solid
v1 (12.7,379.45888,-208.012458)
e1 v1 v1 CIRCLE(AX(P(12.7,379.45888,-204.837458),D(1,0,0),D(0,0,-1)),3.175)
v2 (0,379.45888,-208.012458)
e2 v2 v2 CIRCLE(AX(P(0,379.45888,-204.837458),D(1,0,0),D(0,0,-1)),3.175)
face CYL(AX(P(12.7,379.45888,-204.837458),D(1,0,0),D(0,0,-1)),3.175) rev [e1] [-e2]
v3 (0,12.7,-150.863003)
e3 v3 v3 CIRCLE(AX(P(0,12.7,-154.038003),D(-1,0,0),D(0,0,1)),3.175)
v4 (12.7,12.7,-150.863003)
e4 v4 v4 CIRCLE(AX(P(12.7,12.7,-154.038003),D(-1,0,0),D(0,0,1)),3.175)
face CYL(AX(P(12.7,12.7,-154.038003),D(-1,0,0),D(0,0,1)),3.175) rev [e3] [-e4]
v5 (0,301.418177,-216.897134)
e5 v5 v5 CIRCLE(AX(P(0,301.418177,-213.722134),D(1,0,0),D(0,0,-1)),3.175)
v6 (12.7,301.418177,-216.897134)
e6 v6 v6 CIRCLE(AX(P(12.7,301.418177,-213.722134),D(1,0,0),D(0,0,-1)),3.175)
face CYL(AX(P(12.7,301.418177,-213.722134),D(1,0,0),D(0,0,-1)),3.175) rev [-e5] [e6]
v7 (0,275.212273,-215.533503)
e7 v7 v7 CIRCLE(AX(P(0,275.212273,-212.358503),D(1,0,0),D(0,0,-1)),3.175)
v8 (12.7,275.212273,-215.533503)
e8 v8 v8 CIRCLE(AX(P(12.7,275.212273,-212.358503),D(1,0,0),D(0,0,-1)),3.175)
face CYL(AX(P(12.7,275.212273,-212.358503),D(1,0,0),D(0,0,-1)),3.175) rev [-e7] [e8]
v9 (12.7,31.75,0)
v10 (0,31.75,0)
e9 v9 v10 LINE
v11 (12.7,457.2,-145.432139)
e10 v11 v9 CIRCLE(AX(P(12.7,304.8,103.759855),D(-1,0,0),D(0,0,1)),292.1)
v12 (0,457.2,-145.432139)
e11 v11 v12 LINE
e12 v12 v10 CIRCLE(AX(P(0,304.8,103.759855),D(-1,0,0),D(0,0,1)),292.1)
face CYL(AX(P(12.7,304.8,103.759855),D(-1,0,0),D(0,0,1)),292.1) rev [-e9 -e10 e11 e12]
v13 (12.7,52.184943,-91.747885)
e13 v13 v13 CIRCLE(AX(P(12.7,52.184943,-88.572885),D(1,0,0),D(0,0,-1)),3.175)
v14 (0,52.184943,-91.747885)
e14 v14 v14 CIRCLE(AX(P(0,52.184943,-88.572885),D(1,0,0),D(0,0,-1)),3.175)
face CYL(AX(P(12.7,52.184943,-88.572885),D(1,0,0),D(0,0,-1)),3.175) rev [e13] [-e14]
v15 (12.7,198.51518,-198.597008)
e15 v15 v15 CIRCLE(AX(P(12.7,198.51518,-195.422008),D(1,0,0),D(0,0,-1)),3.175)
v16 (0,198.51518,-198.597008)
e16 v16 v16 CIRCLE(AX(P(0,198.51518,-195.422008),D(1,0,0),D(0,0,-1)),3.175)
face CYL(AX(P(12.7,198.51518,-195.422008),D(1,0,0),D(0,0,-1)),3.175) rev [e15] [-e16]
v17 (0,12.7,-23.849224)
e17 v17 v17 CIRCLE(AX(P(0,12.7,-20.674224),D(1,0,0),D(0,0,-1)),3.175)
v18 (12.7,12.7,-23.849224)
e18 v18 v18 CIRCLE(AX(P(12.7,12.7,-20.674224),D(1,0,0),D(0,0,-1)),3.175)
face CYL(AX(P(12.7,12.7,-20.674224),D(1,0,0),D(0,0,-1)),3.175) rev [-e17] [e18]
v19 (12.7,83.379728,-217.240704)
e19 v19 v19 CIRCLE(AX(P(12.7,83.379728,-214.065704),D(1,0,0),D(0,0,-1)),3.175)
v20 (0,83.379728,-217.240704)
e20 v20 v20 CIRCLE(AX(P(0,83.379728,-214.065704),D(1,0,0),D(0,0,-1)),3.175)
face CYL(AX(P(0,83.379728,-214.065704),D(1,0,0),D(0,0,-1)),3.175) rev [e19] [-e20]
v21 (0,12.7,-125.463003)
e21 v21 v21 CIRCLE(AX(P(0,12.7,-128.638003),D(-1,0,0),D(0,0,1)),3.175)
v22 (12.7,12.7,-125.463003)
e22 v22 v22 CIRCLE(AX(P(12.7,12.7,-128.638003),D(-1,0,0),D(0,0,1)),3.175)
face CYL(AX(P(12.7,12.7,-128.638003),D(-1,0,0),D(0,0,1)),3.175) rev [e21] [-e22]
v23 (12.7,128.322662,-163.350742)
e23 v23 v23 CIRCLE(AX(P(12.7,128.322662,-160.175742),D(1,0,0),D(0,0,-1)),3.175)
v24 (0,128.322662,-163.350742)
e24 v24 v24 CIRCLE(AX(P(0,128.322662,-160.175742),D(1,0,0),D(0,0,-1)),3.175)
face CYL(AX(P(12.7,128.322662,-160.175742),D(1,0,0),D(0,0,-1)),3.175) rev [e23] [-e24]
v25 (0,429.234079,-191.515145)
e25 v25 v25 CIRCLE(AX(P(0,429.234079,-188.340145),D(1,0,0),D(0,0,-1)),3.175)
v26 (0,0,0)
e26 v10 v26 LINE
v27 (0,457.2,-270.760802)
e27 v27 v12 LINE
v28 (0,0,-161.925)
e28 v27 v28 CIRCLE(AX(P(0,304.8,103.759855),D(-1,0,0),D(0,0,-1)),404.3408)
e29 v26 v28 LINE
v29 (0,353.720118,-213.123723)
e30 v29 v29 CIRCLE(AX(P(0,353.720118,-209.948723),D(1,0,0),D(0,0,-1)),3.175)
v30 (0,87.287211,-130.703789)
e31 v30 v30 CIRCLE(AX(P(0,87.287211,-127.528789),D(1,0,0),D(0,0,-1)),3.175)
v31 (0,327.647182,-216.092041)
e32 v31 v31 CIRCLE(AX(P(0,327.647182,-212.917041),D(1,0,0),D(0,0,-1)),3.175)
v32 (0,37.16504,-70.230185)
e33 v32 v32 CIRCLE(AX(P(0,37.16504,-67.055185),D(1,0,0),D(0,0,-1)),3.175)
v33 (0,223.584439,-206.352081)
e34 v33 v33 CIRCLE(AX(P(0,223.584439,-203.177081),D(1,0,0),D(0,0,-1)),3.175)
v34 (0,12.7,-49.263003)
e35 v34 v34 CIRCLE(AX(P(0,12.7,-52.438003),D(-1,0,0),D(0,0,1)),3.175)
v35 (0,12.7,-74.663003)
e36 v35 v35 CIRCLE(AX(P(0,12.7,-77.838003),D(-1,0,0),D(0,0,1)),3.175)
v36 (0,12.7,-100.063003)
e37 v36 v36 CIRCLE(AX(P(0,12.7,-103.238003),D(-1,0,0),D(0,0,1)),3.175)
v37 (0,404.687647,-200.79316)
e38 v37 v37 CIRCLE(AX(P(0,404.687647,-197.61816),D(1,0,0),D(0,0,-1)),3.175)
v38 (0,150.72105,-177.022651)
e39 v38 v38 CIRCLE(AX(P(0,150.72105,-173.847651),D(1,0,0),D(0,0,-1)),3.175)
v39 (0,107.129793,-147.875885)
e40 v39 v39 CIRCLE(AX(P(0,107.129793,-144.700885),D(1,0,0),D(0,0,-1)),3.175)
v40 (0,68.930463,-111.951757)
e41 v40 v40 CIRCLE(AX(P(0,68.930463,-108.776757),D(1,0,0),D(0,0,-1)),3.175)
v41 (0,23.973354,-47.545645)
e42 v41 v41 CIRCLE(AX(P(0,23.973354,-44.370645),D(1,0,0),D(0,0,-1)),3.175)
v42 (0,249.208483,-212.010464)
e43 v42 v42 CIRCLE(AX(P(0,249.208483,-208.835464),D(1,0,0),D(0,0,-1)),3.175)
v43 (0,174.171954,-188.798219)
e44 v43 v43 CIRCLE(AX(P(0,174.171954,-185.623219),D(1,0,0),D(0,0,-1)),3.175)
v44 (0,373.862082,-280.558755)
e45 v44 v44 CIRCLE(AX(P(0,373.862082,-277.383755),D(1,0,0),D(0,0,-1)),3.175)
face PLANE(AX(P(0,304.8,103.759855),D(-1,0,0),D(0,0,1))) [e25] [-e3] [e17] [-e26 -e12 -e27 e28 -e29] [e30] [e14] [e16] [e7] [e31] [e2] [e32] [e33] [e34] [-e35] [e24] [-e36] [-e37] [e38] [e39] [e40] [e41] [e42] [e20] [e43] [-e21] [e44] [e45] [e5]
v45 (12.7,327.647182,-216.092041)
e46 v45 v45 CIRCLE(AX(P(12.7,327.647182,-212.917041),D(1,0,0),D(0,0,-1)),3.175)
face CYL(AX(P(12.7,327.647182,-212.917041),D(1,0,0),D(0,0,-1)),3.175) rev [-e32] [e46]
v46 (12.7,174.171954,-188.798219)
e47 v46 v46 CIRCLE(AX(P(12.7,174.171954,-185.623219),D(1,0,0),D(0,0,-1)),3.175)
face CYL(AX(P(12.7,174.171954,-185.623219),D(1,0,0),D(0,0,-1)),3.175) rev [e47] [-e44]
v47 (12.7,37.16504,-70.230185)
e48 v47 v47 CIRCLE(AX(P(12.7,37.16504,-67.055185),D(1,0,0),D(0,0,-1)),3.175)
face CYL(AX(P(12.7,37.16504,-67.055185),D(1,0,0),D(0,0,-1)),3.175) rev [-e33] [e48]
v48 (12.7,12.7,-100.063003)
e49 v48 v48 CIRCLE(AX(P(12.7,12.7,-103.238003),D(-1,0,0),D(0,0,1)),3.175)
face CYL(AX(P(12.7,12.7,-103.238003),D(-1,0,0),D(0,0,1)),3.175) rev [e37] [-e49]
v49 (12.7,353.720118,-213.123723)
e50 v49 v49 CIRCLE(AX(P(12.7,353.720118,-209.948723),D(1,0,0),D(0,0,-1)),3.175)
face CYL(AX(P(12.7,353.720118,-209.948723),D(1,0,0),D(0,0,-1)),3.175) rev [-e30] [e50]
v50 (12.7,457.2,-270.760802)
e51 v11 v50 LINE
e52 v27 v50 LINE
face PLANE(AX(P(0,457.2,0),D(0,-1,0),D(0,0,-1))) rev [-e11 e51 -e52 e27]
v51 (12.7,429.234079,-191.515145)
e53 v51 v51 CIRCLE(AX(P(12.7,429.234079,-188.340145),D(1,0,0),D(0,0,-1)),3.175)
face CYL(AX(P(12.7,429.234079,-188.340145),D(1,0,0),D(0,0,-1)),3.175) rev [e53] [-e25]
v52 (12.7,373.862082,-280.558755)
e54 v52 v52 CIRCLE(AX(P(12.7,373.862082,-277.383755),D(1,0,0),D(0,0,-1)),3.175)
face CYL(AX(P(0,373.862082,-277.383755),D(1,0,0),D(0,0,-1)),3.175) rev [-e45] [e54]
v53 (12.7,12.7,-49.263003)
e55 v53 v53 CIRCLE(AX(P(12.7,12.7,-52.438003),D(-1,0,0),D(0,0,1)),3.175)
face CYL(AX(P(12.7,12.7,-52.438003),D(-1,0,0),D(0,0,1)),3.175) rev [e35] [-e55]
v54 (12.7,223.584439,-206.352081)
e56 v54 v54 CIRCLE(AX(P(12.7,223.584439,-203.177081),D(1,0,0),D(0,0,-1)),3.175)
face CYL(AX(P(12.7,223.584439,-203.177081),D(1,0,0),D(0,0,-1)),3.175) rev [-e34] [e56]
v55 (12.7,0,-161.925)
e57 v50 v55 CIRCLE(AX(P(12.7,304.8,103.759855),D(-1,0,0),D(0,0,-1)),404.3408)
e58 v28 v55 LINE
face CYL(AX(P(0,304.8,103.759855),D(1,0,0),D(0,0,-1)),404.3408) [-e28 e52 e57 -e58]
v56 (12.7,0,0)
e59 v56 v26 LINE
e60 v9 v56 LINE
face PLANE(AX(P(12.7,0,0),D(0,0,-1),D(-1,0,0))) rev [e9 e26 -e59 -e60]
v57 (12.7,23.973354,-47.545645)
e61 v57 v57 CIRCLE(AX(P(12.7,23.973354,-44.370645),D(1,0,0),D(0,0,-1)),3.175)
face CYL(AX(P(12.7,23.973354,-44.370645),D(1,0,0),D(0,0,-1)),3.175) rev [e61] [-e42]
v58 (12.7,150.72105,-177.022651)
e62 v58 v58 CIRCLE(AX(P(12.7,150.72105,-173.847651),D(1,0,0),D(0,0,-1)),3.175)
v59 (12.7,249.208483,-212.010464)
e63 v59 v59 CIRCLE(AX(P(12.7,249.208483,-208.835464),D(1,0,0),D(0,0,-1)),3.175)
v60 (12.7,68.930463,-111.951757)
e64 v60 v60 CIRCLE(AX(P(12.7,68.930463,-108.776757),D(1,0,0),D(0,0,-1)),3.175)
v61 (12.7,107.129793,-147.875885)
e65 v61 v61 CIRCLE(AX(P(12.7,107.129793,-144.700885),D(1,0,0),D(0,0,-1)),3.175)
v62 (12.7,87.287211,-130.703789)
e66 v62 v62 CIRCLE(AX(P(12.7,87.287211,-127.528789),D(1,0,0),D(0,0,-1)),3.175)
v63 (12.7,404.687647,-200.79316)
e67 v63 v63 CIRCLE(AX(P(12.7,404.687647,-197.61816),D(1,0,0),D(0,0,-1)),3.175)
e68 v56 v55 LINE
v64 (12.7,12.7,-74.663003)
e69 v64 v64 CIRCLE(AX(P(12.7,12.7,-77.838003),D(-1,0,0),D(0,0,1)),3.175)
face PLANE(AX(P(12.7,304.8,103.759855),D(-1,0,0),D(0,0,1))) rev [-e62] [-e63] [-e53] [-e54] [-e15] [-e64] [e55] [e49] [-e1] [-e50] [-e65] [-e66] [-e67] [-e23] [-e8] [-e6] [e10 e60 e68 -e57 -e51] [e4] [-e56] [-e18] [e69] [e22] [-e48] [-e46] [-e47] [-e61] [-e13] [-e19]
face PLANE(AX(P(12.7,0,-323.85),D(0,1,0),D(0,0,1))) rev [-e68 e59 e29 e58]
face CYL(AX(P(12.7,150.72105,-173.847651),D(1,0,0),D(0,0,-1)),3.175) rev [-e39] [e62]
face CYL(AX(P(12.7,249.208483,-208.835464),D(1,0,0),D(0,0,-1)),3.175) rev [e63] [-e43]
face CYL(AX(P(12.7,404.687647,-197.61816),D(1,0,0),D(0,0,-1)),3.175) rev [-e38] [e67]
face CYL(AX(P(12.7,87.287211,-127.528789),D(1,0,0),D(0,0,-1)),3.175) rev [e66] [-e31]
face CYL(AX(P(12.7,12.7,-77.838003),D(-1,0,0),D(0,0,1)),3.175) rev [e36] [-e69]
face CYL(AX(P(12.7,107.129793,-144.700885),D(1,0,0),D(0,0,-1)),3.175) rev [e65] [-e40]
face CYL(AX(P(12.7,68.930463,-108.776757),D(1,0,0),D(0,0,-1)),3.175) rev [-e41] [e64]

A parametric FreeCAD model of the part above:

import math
import FreeCAD as App
import Part
import Sketcher
from FreeCAD import Vector
Q = App.Units.Quantity

doc = App.newDocument("Part")
params = doc.addObject("Spreadsheet::Sheet", "Params")
for row, (alias, value) in enumerate([
    ("sketch1_radius", "11.5 in"),
    ("sketch1_width", "24 in"),
    ("sketch1_width2", "1.25 in"),
    ("sketch1_height", "12.75 in"),
    ("pad1_length", "0.5 in"),
    ("sketch2_width", "6 in"),
    ("sketch2_height", "12.75 in"),
    ("pocket1_length", "0.5 in"),
    ("sketch3_diameter", "0.25 in"),
    ("hole_diameter", "0.25 in"),
    ("sketch4_width", "18 in"),
    ("sketch4_height", "6.375 in"),
    ("sketch5_diameter", "0.25 in"),
    ("sketch6_diameter", "0.25 in"),
    ("linearpattern_pitch", "1 in"),
], start=1):
    params.set(f"A{row}", alias)
    params.set(f"B{row}", "=" + value)
    params.setAlias(f"B{row}", alias)

body = doc.addObject("PartDesign::Body", "Body")

sketch1 = body.newObject("Sketcher::SketchObject", "Sketch")
sketch1.AttachmentSupport = (doc.getObject("YZ_Plane"), [""])
sketch1.MapMode = "FlatFace"
sketch1.addGeometry([
    Part.LineSegment(Vector(610, -324, 0), Vector(610, 0, 0)),
    Part.LineSegment(Vector(610, 0, 0), Vector(578, 0, 0)),
    Part.ArcOfCircle(Part.Circle(Vector(305, 104, 0), Vector(0, 0, 1), 292), math.radians(-159), math.radians(-21)),
    Part.LineSegment(Vector(32, 0, 0), Vector(0, 0, 0)),
    Part.LineSegment(Vector(0, 0, 0), Vector(0, -324, 0)),
    Part.LineSegment(Vector(0, -324, 0), Vector(610, -324, 0)),
], False)
sketch1.addConstraint([
    Sketcher.Constraint("Coincident", 0, 2, 1, 1),
    Sketcher.Constraint("Coincident", 1, 2, 2, 2),
    Sketcher.Constraint("Coincident", 2, 1, 3, 1),
    Sketcher.Constraint("Coincident", 3, 2, 4, 1),
    Sketcher.Constraint("Coincident", 4, 2, 5, 1),
    Sketcher.Constraint("Coincident", 5, 2, 0, 1),
    Sketcher.Constraint("Vertical", 0),
    Sketcher.Constraint("Horizontal", 1),
    Sketcher.Constraint("Horizontal", 3),
    Sketcher.Constraint("Vertical", 4),
    Sketcher.Constraint("Horizontal", 5),
    Sketcher.Constraint("Coincident", 3, 2, -1, 1),
    Sketcher.Constraint("PointOnObject", 0, 2, -1),
    Sketcher.Constraint("Equal", 1, 3),
    Sketcher.Constraint("Radius", 2, Q("11.5 in")),
    Sketcher.Constraint("DistanceX", 5, 1, 5, 2, Q("24 in")),
    Sketcher.Constraint("DistanceX", 1, 2, 1, 1, Q("1.25 in")),
    Sketcher.Constraint("DistanceY", 0, 1, 0, 2, Q("12.75 in")),
])
sketch1.setExpression("Constraints[14]", "Params.sketch1_radius")
sketch1.setExpression("Constraints[15]", "Params.sketch1_width")
sketch1.setExpression("Constraints[16]", "Params.sketch1_width2")
sketch1.setExpression("Constraints[17]", "Params.sketch1_height")
pad1 = body.newObject("PartDesign::Pad", "Pad")
pad1.Profile = sketch1
pad1.setExpression("Length", "Params.pad1_length")

sketch2 = body.newObject("Sketcher::SketchObject", "Sketch001")
sketch2.AttachmentSupport = (doc.getObject("YZ_Plane"), [""])
sketch2.MapMode = "FlatFace"
sketch2.AttachmentOffset = App.Placement(Vector(0, 0, 0.5 * 25.4), App.Rotation())
sketch2.addGeometry([
    Part.LineSegment(Vector(610, 0, 0), Vector(457, 0, 0)),
    Part.LineSegment(Vector(457, 0, 0), Vector(457, -324, 0)),
    Part.LineSegment(Vector(457, -324, 0), Vector(610, -324, 0)),
    Part.LineSegment(Vector(610, -324, 0), Vector(610, 0, 0)),
], False)
sketch2.addConstraint([
    Sketcher.Constraint("Coincident", 0, 2, 1, 1),
    Sketcher.Constraint("Coincident", 1, 2, 2, 1),
    Sketcher.Constraint("Coincident", 2, 2, 3, 1),
    Sketcher.Constraint("Coincident", 3, 2, 0, 1),
    Sketcher.Constraint("Horizontal", 0),
    Sketcher.Constraint("Vertical", 1),
    Sketcher.Constraint("Horizontal", 2),
    Sketcher.Constraint("Vertical", 3),
    Sketcher.Constraint("PointOnObject", 0, 2, -1),
    Sketcher.Constraint("DistanceX", 0, 2, 0, 1, Q("6 in")),
    Sketcher.Constraint("DistanceX", -1, 1, 0, 2, Q("18 in")),
    Sketcher.Constraint("DistanceY", 1, 2, 1, 1, Q("12.75 in")),
])
sketch2.setExpression("Constraints[9]", "Params.sketch2_width")
sketch2.setExpression("Constraints[11]", "Params.sketch2_height")
pocket1 = body.newObject("PartDesign::Pocket", "Pocket")
pocket1.Profile = sketch2
pocket1.setExpression("Length", "Params.pocket1_length")

sketch3 = body.newObject("Sketcher::SketchObject", "Sketch002")
sketch3.AttachmentSupport = (doc.getObject("YZ_Plane"), [""])
sketch3.MapMode = "FlatFace"
sketch3.AttachmentOffset = App.Placement(Vector(0, 0, 0.5 * 25.4), App.Rotation())
sketch3.addGeometry([
    Part.Circle(Vector(12.7, -20.7, 0), Vector(0, 0, 1), 3.2),
    Part.Circle(Vector(24, -44.4, 0), Vector(0, 0, 1), 3.2),
    Part.Circle(Vector(37.2, -67.1, 0), Vector(0, 0, 1), 3.2),
    Part.Circle(Vector(52.2, -88.6, 0), Vector(0, 0, 1), 3.2),
    Part.Circle(Vector(68.9, -108.8, 0), Vector(0, 0, 1), 3.2),
    Part.Circle(Vector(87.3, -127.5, 0), Vector(0, 0, 1), 3.2),
    Part.Circle(Vector(107.1, -144.7, 0), Vector(0, 0, 1), 3.2),
    Part.Circle(Vector(128.3, -160.2, 0), Vector(0, 0, 1), 3.2),
    Part.Circle(Vector(150.7, -173.8, 0), Vector(0, 0, 1), 3.2),
    Part.Circle(Vector(174.2, -185.6, 0), Vector(0, 0, 1), 3.2),
    Part.Circle(Vector(198.5, -195.4, 0), Vector(0, 0, 1), 3.2),
    Part.Circle(Vector(223.6, -203.2, 0), Vector(0, 0, 1), 3.2),
    Part.Circle(Vector(249.2, -208.8, 0), Vector(0, 0, 1), 3.2),
    Part.Circle(Vector(275.2, -212.4, 0), Vector(0, 0, 1), 3.2),
    Part.Circle(Vector(301.4, -213.7, 0), Vector(0, 0, 1), 3.2),
    Part.Circle(Vector(327.6, -212.9, 0), Vector(0, 0, 1), 3.2),
    Part.Circle(Vector(353.7, -209.9, 0), Vector(0, 0, 1), 3.2),
    Part.Circle(Vector(379.5, -204.8, 0), Vector(0, 0, 1), 3.2),
    Part.Circle(Vector(404.7, -197.6, 0), Vector(0, 0, 1), 3.2),
    Part.Circle(Vector(429.2, -188.3, 0), Vector(0, 0, 1), 3.2),
], False)
sketch3.addConstraint([
    Sketcher.Constraint("Equal", 0, 1),
    Sketcher.Constraint("Equal", 1, 2),
    Sketcher.Constraint("Equal", 2, 3),
    Sketcher.Constraint("Equal", 3, 4),
    Sketcher.Constraint("Equal", 4, 5),
    Sketcher.Constraint("Equal", 5, 6),
    Sketcher.Constraint("Equal", 6, 7),
    Sketcher.Constraint("Equal", 7, 8),
    Sketcher.Constraint("Equal", 8, 9),
    Sketcher.Constraint("Equal", 9, 10),
    Sketcher.Constraint("Equal", 10, 11),
    Sketcher.Constraint("Equal", 11, 12),
    Sketcher.Constraint("Equal", 12, 13),
    Sketcher.Constraint("Equal", 13, 14),
    Sketcher.Constraint("Equal", 14, 15),
    Sketcher.Constraint("Equal", 15, 16),
    Sketcher.Constraint("Equal", 16, 17),
    Sketcher.Constraint("Equal", 17, 18),
    Sketcher.Constraint("Equal", 18, 19),
    Sketcher.Constraint("Diameter", 0, Q("0.25 in")),
    Sketcher.Constraint("DistanceX", -1, 1, 0, 3, Q("0.5 in")),
    Sketcher.Constraint("DistanceY", 16, 3, 11, 3, Q("0.2666001 in")),
    Sketcher.Constraint("DistanceY", 3, 3, 2, 3, 21.5177),
    Sketcher.Constraint("DistanceY", 6, 3, 3, 3, 56.128),
    Sketcher.Constraint("DistanceX", 4, 3, 7, 3, 59.392199),
    Sketcher.Constraint("DistanceX", 12, 3, 15, 3, 78.4387),
    Sketcher.Constraint("DistanceX", 15, 3, 17, 3, 51.811698),
    Sketcher.Constraint("DistanceX", 17, 3, 19, 3, 49.775198),
    Sketcher.Constraint("DistanceX", -1, 1, 2, 3, 37.16504),
    Sketcher.Constraint("DistanceX", -1, 1, 5, 3, 87.287211),
    Sketcher.Constraint("DistanceY", 5, 3, -1, 1, 127.528789),
    Sketcher.Constraint("DistanceX", -1, 1, 7, 3, 128.322662),
    Sketcher.Constraint("DistanceY", 7, 3, -1, 1, 160.175742),
    Sketcher.Constraint("DistanceX", -1, 1, 8, 3, 150.72105),
    Sketcher.Constraint("DistanceY", 8, 3, -1, 1, 173.847651),
    Sketcher.Constraint("DistanceY", 9, 3, -1, 1, 185.623219),
    Sketcher.Constraint("DistanceX", -1, 1, 10, 3, 198.51518),
    Sketcher.Constraint("DistanceX", -1, 1, 11, 3, 223.584439),
    Sketcher.Constraint("DistanceY", 11, 3, -1, 1, 203.177081),
    Sketcher.Constraint("DistanceY", 15, 3, -1, 1, 212.917041),
    Sketcher.Constraint("DistanceX", -1, 1, 16, 3, 353.720118),
    Sketcher.Constraint("DistanceX", -1, 1, 17, 3, 379.45888),
    Sketcher.Constraint("DistanceY", 17, 3, -1, 1, 204.837458),
    Sketcher.Constraint("DistanceY", 18, 3, -1, 1, 197.61816),
    Sketcher.Constraint("DistanceY", 1, 3, 0, 3, 23.696421),
    Sketcher.Constraint("DistanceY", 2, 3, 1, 3, 22.68454),
    Sketcher.Constraint("DistanceX", 1, 3, 3, 3, 28.211588),
    Sketcher.Constraint("DistanceX", 3, 3, 4, 3, 16.74552),
    Sketcher.Constraint("DistanceY", 4, 3, 1, 3, 64.406112),
    Sketcher.Constraint("DistanceY", 5, 3, 4, 3, 18.752032),
    Sketcher.Constraint("DistanceX", 5, 3, 6, 3, 19.842581),
    Sketcher.Constraint("DistanceX", 6, 3, 9, 3, 67.042161),
    Sketcher.Constraint("DistanceY", 10, 3, 9, 3, 9.798789),
    Sketcher.Constraint("DistanceY", 12, 3, 7, 3, 48.659722),
    Sketcher.Constraint("DistanceX", 12, 3, 13, 3, 26.00379),
    Sketcher.Constraint("DistanceY", 13, 3, 12, 3, 3.52304),
    Sketcher.Constraint("DistanceY", 14, 3, 13, 3, 1.363631),
    Sketcher.Constraint("DistanceX", 14, 3, 16, 3, 52.301942),
    Sketcher.Constraint("DistanceX", 16, 3, 18, 3, 50.967528),
    Sketcher.Constraint("DistanceY", 16, 3, 19, 3, 21.608578),
])
sketch3.setExpression("Constraints[19]", "Params.sketch3_diameter")
doc.recompute()
hole = body.newObject("PartDesign::Hole", "Hole")
hole.Profile = sketch3
hole.ThreadType = "None"
hole.setExpression("Diameter", "Params.hole_diameter")
hole.DepthType = "ThroughAll"

sketch4 = body.newObject("Sketcher::SketchObject", "Sketch003")
sketch4.AttachmentSupport = (doc.getObject("YZ_Plane"), [""])
sketch4.MapMode = "FlatFace"
sketch4.AttachmentOffset = App.Placement(Vector(0, 0, 0.5 * 25.4), App.Rotation())
sketch4.addGeometry([
    Part.LineSegment(Vector(457, -324, 0), Vector(457, -271, 0)),
    Part.ArcOfCircle(Part.Circle(Vector(305, 104, 0), Vector(0, 0, 1), 404), math.radians(-139), math.radians(-68)),
    Part.LineSegment(Vector(0, -162, 0), Vector(0, -324, 0)),
    Part.LineSegment(Vector(0, -324, 0), Vector(457, -324, 0)),
], False)
sketch4.addConstraint([
    Sketcher.Constraint("Coincident", 0, 2, 1, 2),
    Sketcher.Constraint("Coincident", 1, 1, 2, 1),
    Sketcher.Constraint("Coincident", 2, 2, 3, 1),
    Sketcher.Constraint("Coincident", 3, 2, 0, 1),
    Sketcher.Constraint("Vertical", 0),
    Sketcher.Constraint("Vertical", 2),
    Sketcher.Constraint("Horizontal", 3),
    Sketcher.Constraint("PointOnObject", 1, 1, -2),
    Sketcher.Constraint("DistanceX", 3, 1, 3, 2, Q("18 in")),
    Sketcher.Constraint("DistanceX", -1, 1, 1, 3, Q("12 in")),
    Sketcher.Constraint("DistanceY", 2, 2, 2, 1, Q("6.375 in")),
    Sketcher.Constraint("DistanceY", 2, 2, -1, 1, Q("12.75 in")),
    Sketcher.Constraint("Radius", 1, 404.3408),
])
sketch4.setExpression("Constraints[8]", "Params.sketch4_width")
sketch4.setExpression("Constraints[10]", "Params.sketch4_height")
pocket2 = body.newObject("PartDesign::Pocket", "Pocket001")
pocket2.Profile = sketch4
pocket2.Type = "ThroughAll"

sketch5 = body.newObject("Sketcher::SketchObject", "Sketch004")
sketch5.AttachmentSupport = (doc.getObject("YZ_Plane"), [""])
sketch5.MapMode = "FlatFace"
sketch5.AttachmentOffset = App.Placement(Vector(0, 0, 0.5 * 25.4), App.Rotation())
sketch5.addGeometry([
    Part.Circle(Vector(83.4, -214.1, 0), Vector(0, 0, 1), 3.2),
    Part.Circle(Vector(373.9, -277.4, 0), Vector(0, 0, 1), 3.2),
], False)
sketch5.addConstraint([
    Sketcher.Constraint("Equal", 0, 1),
    Sketcher.Constraint("Diameter", 0, Q("0.25 in")),
    Sketcher.Constraint("DistanceX", -1, 1, 0, 3, 83.379728),
    Sketcher.Constraint("DistanceX", -1, 1, 1, 3, 373.862082),
    Sketcher.Constraint("DistanceY", 1, 3, 0, 3, 63.318051),
    Sketcher.Constraint("DistanceY", 0, 3, -1, 1, 214.065704),
])
sketch5.setExpression("Constraints[1]", "Params.sketch5_diameter")
pocket3 = body.newObject("PartDesign::Pocket", "Pocket002")
pocket3.Profile = sketch5
pocket3.Type = "ThroughAll"

sketch6 = body.newObject("Sketcher::SketchObject", "Sketch005")
sketch6.AttachmentSupport = (doc.getObject("YZ_Plane"), [""])
sketch6.MapMode = "FlatFace"
sketch6.addGeometry(Part.Circle(Vector(12.7, -154, 0), Vector(0, 0, 1), 3.2), False)
sketch6.addConstraint([
    Sketcher.Constraint("Diameter", 0, Q("0.25 in")),
    Sketcher.Constraint("DistanceX", -1, 1, 0, 3, Q("0.5 in")),
    Sketcher.Constraint("DistanceY", 0, 3, -1, 1, 154.038003),
])
sketch6.setExpression("Constraints[0]", "Params.sketch6_diameter")
pocket4 = body.newObject("PartDesign::Pocket", "Pocket003")
pocket4.Profile = sketch6
pocket4.Type = "ThroughAll"
pocket4.Reversed = True
doc.recompute()

linearpattern = body.newObject("PartDesign::LinearPattern", "LinearPattern")
linearpattern.Originals = [pocket4]
linearpattern.Direction = (doc.getObject("Z_Axis"), [""])
linearpattern.Mode = "offset"
linearpattern.setExpression("Offset", "Params.linearpattern_pitch")
linearpattern.Occurrences = 5
body.Tip = linearpattern

doc.recompute()
